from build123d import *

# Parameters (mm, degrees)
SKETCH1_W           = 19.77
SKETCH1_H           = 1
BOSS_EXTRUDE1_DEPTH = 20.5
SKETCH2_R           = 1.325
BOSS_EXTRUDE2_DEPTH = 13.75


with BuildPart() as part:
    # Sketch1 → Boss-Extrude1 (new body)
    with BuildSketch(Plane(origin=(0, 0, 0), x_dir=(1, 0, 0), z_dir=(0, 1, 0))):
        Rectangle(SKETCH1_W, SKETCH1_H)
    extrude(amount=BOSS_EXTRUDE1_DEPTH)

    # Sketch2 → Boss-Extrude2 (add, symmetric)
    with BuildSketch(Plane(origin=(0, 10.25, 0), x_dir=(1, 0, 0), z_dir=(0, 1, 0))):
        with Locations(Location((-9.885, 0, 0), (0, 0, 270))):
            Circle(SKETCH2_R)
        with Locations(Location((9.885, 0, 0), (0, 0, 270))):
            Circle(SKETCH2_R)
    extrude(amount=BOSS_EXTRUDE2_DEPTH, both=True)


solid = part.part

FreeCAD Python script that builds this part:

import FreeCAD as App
import Part
import Sketcher
from FreeCAD import Vector
Q = App.Units.Quantity


def add_polygon(sketch, points):
    """Adds a closed chain of lines whose ends are joined by coincident constraints."""
    first, n = sketch.GeometryCount, len(points)
    for a, b in zip(points, points[1:] + points[:1]):
        sketch.addGeometry(Part.LineSegment(App.Vector(*a, 0), App.Vector(*b, 0)), False)
    for i in range(n):
        sketch.addConstraint(Sketcher.Constraint("Coincident", first + i, 2, first + (i + 1) % n, 1))

doc = App.newDocument("Part")
params = doc.addObject("Spreadsheet::Sheet", "Params")
for row, (alias, value) in enumerate([
    ("sketch1_height", "1 mm"),
    ("sketch1_width", "19.77 mm"),
    ("pad1_length", "20.5 mm"),
    ("sketch2_diameter", "2.65 mm"),
    ("pad2_length", "27.5 mm"),
], start=1):
    params.set(f"A{row}", alias)
    params.set(f"B{row}", "=" + value)
    params.setAlias(f"B{row}", alias)

body = doc.addObject("PartDesign::Body", "Body")

sketch1 = doc.addObject("Sketcher::SketchObject", "Sketch")
body.addObject(sketch1)
sketch1.AttachmentSupport = (doc.XZ_Plane, [""])
sketch1.MapMode = "FlatFace"
add_polygon(sketch1, [(-9.9, -0.5), (-9.9, 0.5), (9.9, 0.5), (9.9, -0.5)])
sketch1.addConstraint(Sketcher.Constraint("Vertical", 0))
sketch1.addConstraint(Sketcher.Constraint("Horizontal", 1))
sketch1.addConstraint(Sketcher.Constraint("Vertical", 2))
sketch1.addConstraint(Sketcher.Constraint("Horizontal", 3))
sketch1.addConstraint(Sketcher.Constraint("Symmetric", 0, 2, 2, 2, -1, 1))
sketch1.addConstraint(Sketcher.Constraint("DistanceY", 0, 1, 0, 2, Q("1 mm")))
sketch1.addConstraint(Sketcher.Constraint("DistanceX", 1, 1, 1, 2, Q("19.77 mm")))
sketch1.setExpression("Constraints[9]", "Params.sketch1_height")
sketch1.setExpression("Constraints[10]", "Params.sketch1_width")
pad1 = doc.addObject("PartDesign::Pad", "Pad")
body.addObject(pad1)
pad1.Profile = sketch1
pad1.setExpression("Length", "Params.pad1_length")
pad1.Reversed = True

sketch2 = doc.addObject("Sketcher::SketchObject", "Sketch001")
body.addObject(sketch2)
sketch2.AttachmentSupport = (doc.XZ_Plane, [""])
sketch2.MapMode = "FlatFace"
sketch2.AttachmentOffset = App.Placement(Vector(0, 0, -10.25), App.Rotation())
sketch2.addGeometry(Part.Circle(Vector(-9.9, 0, 0), Vector(0, 0, 1), 1.3), False)
sketch2.addGeometry(Part.Circle(Vector(9.9, 0, 0), Vector(0, 0, 1), 1.3), False)
sketch2.addConstraint(Sketcher.Constraint("Equal", 0, 1))
sketch2.addConstraint(Sketcher.Constraint("Symmetric", 0, 3, 1, 3, -1, 1))
sketch2.addConstraint(Sketcher.Constraint("PointOnObject", 0, 3, -1))
sketch2.addConstraint(Sketcher.Constraint("Diameter", 0, Q("2.65 mm")))
sketch2.addConstraint(Sketcher.Constraint("DistanceX", 0, 3, 1, 3, Q("19.77 mm")))
sketch2.setExpression("Constraints[3]", "Params.sketch2_diameter")
pad2 = doc.addObject("PartDesign::Pad", "Pad001")
body.addObject(pad2)
pad2.Profile = sketch2
pad2.setExpression("Length", "Params.pad2_length")
pad2.Midplane = True

doc.recompute()
